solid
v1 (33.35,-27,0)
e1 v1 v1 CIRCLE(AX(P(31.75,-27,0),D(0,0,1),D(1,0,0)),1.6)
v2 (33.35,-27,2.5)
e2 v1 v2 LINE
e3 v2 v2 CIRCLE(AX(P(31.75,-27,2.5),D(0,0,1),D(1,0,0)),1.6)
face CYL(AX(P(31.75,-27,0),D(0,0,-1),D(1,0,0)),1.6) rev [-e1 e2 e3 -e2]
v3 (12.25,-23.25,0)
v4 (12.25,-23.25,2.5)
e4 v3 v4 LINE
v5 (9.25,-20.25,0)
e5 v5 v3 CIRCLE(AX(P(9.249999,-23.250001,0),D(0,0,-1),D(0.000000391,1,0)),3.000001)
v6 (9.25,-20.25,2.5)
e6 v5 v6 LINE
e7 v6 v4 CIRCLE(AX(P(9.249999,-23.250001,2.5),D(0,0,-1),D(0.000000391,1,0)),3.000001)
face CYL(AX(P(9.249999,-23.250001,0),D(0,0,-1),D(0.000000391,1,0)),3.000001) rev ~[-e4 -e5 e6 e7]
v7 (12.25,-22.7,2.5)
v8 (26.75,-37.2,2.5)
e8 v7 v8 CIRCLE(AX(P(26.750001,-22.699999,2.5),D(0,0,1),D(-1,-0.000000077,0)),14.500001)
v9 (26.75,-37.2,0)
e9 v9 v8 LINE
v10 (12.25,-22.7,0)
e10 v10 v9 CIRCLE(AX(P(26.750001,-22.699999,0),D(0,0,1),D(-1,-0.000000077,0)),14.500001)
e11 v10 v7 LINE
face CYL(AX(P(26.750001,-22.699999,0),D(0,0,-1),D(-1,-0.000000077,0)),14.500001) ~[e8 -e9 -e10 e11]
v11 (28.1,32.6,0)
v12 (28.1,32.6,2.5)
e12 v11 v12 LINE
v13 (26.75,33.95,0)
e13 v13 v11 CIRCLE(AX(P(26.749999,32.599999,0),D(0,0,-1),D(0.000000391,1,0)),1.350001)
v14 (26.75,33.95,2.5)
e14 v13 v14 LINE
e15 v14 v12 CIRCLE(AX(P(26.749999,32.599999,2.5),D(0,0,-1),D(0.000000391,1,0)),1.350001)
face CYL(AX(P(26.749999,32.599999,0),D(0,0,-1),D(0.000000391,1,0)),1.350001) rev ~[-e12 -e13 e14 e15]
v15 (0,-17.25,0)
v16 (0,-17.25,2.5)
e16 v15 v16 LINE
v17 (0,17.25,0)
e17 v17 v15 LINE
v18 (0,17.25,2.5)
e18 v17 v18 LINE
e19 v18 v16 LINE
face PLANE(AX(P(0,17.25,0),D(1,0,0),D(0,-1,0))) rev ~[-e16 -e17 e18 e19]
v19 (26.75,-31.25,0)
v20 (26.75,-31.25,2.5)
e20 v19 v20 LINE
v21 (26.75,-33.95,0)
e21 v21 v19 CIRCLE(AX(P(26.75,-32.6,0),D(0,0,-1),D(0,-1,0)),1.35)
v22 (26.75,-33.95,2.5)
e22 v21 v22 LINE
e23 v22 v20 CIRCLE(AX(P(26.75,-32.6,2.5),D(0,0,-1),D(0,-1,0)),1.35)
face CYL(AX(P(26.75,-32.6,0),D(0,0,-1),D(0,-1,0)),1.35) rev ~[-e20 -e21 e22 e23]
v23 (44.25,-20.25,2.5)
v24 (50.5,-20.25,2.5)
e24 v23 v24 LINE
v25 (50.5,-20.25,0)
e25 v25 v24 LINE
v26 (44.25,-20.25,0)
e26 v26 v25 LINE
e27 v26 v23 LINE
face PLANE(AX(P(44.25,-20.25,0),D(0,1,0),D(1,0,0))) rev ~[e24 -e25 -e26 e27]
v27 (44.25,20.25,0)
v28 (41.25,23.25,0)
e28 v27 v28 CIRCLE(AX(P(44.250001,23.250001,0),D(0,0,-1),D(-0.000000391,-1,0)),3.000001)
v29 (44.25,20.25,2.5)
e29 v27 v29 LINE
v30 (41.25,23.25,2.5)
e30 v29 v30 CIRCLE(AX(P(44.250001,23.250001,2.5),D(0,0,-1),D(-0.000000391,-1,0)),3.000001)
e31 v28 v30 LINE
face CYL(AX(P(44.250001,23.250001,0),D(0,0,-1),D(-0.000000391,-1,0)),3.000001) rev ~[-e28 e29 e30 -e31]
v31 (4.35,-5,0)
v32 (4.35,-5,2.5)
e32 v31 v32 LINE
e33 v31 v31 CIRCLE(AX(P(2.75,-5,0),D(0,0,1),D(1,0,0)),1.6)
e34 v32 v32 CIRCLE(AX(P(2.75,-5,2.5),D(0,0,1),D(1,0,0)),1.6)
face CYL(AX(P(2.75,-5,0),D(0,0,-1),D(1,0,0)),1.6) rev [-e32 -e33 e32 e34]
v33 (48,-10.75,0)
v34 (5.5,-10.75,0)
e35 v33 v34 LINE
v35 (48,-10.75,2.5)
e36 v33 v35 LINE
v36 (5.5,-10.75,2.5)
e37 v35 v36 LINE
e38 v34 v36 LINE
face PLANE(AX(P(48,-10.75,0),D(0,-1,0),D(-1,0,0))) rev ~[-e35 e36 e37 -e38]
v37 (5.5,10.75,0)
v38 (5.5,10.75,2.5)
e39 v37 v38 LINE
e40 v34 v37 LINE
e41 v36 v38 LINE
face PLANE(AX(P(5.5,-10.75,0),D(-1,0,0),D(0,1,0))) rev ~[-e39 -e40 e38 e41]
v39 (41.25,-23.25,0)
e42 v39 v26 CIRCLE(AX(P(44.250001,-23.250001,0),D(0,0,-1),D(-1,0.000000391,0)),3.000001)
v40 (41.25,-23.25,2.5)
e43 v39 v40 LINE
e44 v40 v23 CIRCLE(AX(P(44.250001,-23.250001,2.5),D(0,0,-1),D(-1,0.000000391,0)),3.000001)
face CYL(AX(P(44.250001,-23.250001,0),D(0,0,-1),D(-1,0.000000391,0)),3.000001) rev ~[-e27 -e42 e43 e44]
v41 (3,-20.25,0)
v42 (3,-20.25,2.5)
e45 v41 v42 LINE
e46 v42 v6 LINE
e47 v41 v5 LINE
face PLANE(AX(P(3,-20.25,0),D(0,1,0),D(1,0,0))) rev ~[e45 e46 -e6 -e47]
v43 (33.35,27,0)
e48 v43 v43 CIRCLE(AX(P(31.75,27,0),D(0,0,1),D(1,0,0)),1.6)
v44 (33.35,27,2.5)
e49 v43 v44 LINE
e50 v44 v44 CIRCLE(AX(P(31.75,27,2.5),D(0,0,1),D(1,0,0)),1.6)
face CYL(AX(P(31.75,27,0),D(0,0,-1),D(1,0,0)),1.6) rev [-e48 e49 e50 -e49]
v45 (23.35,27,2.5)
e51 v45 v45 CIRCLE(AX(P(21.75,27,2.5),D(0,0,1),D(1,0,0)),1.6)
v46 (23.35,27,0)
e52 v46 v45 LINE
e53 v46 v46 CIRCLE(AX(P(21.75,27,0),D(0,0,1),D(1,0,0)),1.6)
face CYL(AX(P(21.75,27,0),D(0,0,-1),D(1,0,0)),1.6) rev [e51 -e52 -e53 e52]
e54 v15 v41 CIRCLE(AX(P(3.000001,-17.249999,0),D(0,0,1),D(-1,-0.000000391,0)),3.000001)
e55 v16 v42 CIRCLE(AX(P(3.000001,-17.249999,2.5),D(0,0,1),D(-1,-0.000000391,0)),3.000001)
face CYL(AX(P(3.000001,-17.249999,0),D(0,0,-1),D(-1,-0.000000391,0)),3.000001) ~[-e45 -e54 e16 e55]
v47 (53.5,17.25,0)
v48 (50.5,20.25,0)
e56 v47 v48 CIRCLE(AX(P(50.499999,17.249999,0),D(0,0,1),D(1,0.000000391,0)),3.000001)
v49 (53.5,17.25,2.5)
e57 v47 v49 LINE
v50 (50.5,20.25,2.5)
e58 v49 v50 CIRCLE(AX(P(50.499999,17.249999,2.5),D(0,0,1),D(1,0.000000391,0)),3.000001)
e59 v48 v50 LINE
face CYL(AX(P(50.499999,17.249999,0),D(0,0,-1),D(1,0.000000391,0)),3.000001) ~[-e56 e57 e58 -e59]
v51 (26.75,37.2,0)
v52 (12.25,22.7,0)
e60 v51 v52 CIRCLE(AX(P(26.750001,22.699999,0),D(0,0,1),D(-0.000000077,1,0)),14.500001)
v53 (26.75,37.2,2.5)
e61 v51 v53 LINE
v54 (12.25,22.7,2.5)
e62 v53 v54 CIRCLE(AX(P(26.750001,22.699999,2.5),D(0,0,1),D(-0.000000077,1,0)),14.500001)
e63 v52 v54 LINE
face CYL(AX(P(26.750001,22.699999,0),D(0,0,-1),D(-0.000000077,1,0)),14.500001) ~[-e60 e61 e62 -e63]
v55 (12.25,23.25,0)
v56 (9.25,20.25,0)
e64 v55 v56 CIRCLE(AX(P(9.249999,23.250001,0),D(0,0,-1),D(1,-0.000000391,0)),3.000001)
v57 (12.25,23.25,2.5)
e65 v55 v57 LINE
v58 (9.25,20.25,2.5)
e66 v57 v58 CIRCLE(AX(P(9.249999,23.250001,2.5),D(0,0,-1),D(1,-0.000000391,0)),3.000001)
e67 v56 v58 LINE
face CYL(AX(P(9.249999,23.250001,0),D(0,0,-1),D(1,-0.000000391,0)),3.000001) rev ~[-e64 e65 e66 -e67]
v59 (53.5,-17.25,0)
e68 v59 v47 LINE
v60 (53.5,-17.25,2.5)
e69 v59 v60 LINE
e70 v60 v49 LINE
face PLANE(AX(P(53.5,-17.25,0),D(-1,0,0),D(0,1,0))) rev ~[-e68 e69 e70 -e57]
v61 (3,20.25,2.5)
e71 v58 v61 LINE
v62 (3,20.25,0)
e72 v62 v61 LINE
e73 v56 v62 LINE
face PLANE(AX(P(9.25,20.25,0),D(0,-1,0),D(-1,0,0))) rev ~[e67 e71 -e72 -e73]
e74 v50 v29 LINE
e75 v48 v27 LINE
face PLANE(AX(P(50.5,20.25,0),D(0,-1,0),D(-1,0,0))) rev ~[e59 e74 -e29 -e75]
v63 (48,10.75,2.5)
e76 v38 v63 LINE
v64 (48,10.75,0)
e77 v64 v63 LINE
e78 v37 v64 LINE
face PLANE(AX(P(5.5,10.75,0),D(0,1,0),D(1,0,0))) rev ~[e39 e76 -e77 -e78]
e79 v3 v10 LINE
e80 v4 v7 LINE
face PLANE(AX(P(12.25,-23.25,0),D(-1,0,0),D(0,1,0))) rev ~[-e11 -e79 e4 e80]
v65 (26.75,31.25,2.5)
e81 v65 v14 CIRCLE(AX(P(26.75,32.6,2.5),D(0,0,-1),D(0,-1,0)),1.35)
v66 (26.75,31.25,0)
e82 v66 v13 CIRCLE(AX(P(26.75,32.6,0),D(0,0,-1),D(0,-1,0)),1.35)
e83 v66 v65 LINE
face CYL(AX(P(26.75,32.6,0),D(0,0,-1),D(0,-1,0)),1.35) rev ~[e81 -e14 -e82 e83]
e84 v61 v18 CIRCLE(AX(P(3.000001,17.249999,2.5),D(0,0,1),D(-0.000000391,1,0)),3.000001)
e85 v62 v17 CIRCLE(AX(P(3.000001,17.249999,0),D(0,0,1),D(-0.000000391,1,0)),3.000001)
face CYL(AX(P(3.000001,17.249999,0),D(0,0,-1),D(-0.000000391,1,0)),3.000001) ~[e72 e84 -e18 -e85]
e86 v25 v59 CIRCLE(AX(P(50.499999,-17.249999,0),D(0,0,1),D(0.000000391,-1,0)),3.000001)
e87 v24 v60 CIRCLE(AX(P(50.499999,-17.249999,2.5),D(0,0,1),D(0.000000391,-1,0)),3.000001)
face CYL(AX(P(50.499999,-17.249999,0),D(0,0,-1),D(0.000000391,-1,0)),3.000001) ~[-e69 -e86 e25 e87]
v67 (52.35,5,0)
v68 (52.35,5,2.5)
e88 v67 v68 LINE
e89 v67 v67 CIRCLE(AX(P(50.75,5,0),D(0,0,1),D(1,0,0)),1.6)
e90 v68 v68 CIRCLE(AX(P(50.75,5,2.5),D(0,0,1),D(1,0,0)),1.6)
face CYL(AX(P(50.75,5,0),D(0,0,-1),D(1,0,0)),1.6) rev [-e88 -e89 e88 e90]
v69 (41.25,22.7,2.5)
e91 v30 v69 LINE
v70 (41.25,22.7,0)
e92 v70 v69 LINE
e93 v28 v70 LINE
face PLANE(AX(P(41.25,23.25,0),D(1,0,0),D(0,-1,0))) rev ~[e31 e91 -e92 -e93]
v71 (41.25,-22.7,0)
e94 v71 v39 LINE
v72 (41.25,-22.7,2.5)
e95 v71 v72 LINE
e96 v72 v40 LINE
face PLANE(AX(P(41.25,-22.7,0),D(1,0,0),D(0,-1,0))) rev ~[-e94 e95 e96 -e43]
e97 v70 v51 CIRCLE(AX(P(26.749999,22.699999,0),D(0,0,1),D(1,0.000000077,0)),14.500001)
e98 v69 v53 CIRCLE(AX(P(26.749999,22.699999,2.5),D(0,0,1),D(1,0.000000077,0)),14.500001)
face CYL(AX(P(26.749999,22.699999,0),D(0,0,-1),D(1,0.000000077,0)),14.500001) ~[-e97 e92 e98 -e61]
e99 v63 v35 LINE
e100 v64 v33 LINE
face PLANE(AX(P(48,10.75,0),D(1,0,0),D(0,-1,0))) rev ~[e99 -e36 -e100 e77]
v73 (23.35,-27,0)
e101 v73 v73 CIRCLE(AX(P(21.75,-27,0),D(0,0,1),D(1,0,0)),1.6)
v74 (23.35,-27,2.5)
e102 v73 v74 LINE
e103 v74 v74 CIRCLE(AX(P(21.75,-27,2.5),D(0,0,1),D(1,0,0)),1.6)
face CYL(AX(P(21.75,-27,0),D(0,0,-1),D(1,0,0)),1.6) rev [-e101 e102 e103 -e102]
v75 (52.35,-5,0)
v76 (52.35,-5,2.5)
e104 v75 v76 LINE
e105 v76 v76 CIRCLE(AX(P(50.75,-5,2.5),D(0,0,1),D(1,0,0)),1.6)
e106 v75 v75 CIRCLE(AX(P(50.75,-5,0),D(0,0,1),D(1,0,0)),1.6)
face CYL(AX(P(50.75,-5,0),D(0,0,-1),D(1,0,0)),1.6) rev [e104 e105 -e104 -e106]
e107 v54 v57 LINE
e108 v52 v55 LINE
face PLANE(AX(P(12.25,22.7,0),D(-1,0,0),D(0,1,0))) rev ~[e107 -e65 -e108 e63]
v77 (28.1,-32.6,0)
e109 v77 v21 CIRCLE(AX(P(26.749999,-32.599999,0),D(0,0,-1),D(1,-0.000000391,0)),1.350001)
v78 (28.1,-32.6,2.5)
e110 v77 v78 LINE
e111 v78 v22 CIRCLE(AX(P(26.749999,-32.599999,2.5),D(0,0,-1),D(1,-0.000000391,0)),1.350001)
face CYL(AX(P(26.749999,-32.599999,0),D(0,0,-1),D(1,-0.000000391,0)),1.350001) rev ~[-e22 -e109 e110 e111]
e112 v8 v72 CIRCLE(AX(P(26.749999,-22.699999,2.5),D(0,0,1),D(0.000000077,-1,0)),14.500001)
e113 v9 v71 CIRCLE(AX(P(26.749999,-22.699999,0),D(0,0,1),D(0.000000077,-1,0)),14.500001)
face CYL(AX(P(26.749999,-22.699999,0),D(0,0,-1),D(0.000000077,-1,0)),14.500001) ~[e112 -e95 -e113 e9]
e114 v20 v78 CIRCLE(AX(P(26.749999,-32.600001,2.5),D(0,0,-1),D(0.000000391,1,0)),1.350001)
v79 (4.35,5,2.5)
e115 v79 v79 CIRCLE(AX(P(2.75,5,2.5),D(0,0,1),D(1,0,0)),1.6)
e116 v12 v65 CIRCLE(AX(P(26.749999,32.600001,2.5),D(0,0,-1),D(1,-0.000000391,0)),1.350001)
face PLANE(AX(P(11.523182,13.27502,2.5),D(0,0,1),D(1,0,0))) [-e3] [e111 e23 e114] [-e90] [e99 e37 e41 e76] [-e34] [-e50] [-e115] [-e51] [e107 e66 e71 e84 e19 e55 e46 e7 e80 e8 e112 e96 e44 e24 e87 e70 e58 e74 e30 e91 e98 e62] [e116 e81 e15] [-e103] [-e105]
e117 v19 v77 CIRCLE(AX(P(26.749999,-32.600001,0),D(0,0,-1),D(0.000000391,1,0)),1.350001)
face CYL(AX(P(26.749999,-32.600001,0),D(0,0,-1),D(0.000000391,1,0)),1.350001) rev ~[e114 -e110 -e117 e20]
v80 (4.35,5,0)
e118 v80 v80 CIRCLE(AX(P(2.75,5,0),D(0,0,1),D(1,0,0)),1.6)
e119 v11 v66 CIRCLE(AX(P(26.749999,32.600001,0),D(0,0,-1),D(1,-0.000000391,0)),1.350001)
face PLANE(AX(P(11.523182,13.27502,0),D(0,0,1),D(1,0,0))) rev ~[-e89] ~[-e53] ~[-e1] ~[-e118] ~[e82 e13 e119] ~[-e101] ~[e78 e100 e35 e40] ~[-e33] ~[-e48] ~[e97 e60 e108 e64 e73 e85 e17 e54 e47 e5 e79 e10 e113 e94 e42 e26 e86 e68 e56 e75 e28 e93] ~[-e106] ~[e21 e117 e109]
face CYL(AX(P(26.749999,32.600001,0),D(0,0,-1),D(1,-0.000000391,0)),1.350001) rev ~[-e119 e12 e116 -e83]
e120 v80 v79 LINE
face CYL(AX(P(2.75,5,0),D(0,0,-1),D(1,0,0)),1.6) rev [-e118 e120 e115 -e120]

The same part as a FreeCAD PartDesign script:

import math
import FreeCAD as App
import Part
import Sketcher
Q = App.Units.Quantity


def add_polygon(sketch, points):
    """Adds a closed chain of lines whose ends are joined by coincident constraints."""
    first, n = sketch.GeometryCount, len(points)
    for a, b in zip(points, points[1:] + points[:1]):
        sketch.addGeometry(Part.LineSegment(App.Vector(*a, 0), App.Vector(*b, 0)), False)
    for i in range(n):
        sketch.addConstraint(Sketcher.Constraint("Coincident", first + i, 2, first + (i + 1) % n, 1))

doc = App.newDocument("Part")
body = doc.addObject("PartDesign::Body", "Body")

sketch1 = body.newObject("Sketcher::SketchObject", "Sketch")
sketch1.AttachmentSupport = (doc.getObject("XY_Plane"), [""])
sketch1.MapMode = "FlatFace"
sketch1.addGeometry(Part.LineSegment(App.Vector(0, 17.2, 0), App.Vector(0, -17.2, 0)), False)
sketch1.addGeometry(Part.ArcOfCircle(Part.Circle(App.Vector(3, -17.2, 0), App.Vector(0, 0, 1), 3), math.radians(-180), math.radians(-90)), False)
sketch1.addGeometry(Part.LineSegment(App.Vector(3, -20.2, 0), App.Vector(9.2, -20.2, 0)), False)
sketch1.addGeometry(Part.ArcOfCircle(Part.Circle(App.Vector(9.2, -23.3, 0), App.Vector(0, 0, 1), 3), math.radians(0), math.radians(90)), False)
sketch1.addGeometry(Part.LineSegment(App.Vector(12.2, -23.2, 0), App.Vector(12.2, -22.7, 0)), False)
sketch1.addGeometry(Part.ArcOfCircle(Part.Circle(App.Vector(26.8, -22.7, 0), App.Vector(0, 0, 1), 14.5), math.radians(-180), math.radians(-90)), False)
sketch1.addGeometry(Part.ArcOfCircle(Part.Circle(App.Vector(26.7, -22.7, 0), App.Vector(0, 0, 1), 14.5), math.radians(-90), math.radians(0)), False)
sketch1.addGeometry(Part.LineSegment(App.Vector(41.2, -22.7, 0), App.Vector(41.2, -23.2, 0)), False)
sketch1.addGeometry(Part.ArcOfCircle(Part.Circle(App.Vector(44.3, -23.3, 0), App.Vector(0, 0, 1), 3), math.radians(90), math.radians(180)), False)
sketch1.addGeometry(Part.LineSegment(App.Vector(44.2, -20.2, 0), App.Vector(50.5, -20.2, 0)), False)
sketch1.addGeometry(Part.ArcOfCircle(Part.Circle(App.Vector(50.5, -17.2, 0), App.Vector(0, 0, 1), 3), math.radians(-90), math.radians(0)), False)
sketch1.addGeometry(Part.LineSegment(App.Vector(53.5, -17.2, 0), App.Vector(53.5, 17.2, 0)), False)
sketch1.addGeometry(Part.ArcOfCircle(Part.Circle(App.Vector(50.5, 17.2, 0), App.Vector(0, 0, 1), 3), math.radians(0), math.radians(90)), False)
sketch1.addGeometry(Part.LineSegment(App.Vector(50.5, 20.2, 0), App.Vector(44.2, 20.2, 0)), False)
sketch1.addGeometry(Part.ArcOfCircle(Part.Circle(App.Vector(44.3, 23.3, 0), App.Vector(0, 0, 1), 3), math.radians(-180), math.radians(-90)), False)
sketch1.addGeometry(Part.LineSegment(App.Vector(41.2, 23.2, 0), App.Vector(41.2, 22.7, 0)), False)
sketch1.addGeometry(Part.ArcOfCircle(Part.Circle(App.Vector(26.7, 22.7, 0), App.Vector(0, 0, 1), 14.5), math.radians(0), math.radians(90)), False)
sketch1.addGeometry(Part.ArcOfCircle(Part.Circle(App.Vector(26.8, 22.7, 0), App.Vector(0, 0, 1), 14.5), math.radians(90), math.radians(180)), False)
sketch1.addGeometry(Part.LineSegment(App.Vector(12.2, 22.7, 0), App.Vector(12.2, 23.2, 0)), False)
sketch1.addGeometry(Part.ArcOfCircle(Part.Circle(App.Vector(9.2, 23.3, 0), App.Vector(0, 0, 1), 3), math.radians(-90), math.radians(0)), False)
sketch1.addGeometry(Part.LineSegment(App.Vector(9.2, 20.2, 0), App.Vector(3, 20.2, 0)), False)
sketch1.addGeometry(Part.ArcOfCircle(Part.Circle(App.Vector(3, 17.2, 0), App.Vector(0, 0, 1), 3), math.radians(90), math.radians(180)), False)
sketch1.addGeometry(Part.Circle(App.Vector(21.8, -27, 0), App.Vector(0, 0, 1), 1.6), False)
sketch1.addGeometry(Part.Circle(App.Vector(2.8, -5, 0), App.Vector(0, 0, 1), 1.6), False)
sketch1.addGeometry(Part.ArcOfCircle(Part.Circle(App.Vector(26.7, -32.6, 0), App.Vector(0, 0, 1), 1.4), math.radians(0), math.radians(90)), False)
sketch1.addGeometry(Part.ArcOfCircle(Part.Circle(App.Vector(26.7, -32.6, 0), App.Vector(0, 0, 1), 1.4), math.radians(-90), math.radians(0)), False)
sketch1.addGeometry(Part.ArcOfCircle(Part.Circle(App.Vector(26.8, -32.6, 0), App.Vector(0, 0, 1), 1.4), math.radians(90), math.radians(270)), False)
sketch1.addGeometry(Part.Circle(App.Vector(31.8, -27, 0), App.Vector(0, 0, 1), 1.6), False)
sketch1.addGeometry(Part.Circle(App.Vector(50.8, -5, 0), App.Vector(0, 0, 1), 1.6), False)
sketch1.addGeometry(Part.Circle(App.Vector(2.8, 5, 0), App.Vector(0, 0, 1), 1.6), False)
sketch1.addGeometry(Part.Circle(App.Vector(21.8, 27, 0), App.Vector(0, 0, 1), 1.6), False)
add_polygon(sketch1, [(5.5, -10.8), (5.5, 10.8), (48, 10.8), (48, -10.8)])
sketch1.addGeometry(Part.Circle(App.Vector(50.8, 5, 0), App.Vector(0, 0, 1), 1.6), False)
sketch1.addGeometry(Part.Circle(App.Vector(31.8, 27, 0), App.Vector(0, 0, 1), 1.6), False)
sketch1.addGeometry(Part.ArcOfCircle(Part.Circle(App.Vector(26.8, 32.6, 0), App.Vector(0, 0, 1), 1.4), math.radians(90), math.radians(270)), False)
sketch1.addGeometry(Part.ArcOfCircle(Part.Circle(App.Vector(26.7, 32.6, 0), App.Vector(0, 0, 1), 1.4), math.radians(0), math.radians(90)), False)
sketch1.addGeometry(Part.ArcOfCircle(Part.Circle(App.Vector(26.7, 32.6, 0), App.Vector(0, 0, 1), 1.4), math.radians(-90), math.radians(0)), False)
sketch1.addConstraint(Sketcher.Constraint("Tangent", 0, 2, 1, 1))
sketch1.addConstraint(Sketcher.Constraint("Tangent", 1, 2, 2, 1))
sketch1.addConstraint(Sketcher.Constraint("Tangent", 2, 2, 3, 2))
sketch1.addConstraint(Sketcher.Constraint("Tangent", 3, 1, 4, 1))
sketch1.addConstraint(Sketcher.Constraint("Tangent", 4, 2, 5, 1))
sketch1.addConstraint(Sketcher.Constraint("Tangent", 5, 2, 6, 1))
sketch1.addConstraint(Sketcher.Constraint("Tangent", 6, 2, 7, 1))
sketch1.addConstraint(Sketcher.Constraint("Tangent", 7, 2, 8, 2))
sketch1.addConstraint(Sketcher.Constraint("Tangent", 8, 1, 9, 1))
sketch1.addConstraint(Sketcher.Constraint("Tangent", 9, 2, 10, 1))
sketch1.addConstraint(Sketcher.Constraint("Tangent", 10, 2, 11, 1))
sketch1.addConstraint(Sketcher.Constraint("Tangent", 11, 2, 12, 1))
sketch1.addConstraint(Sketcher.Constraint("Tangent", 12, 2, 13, 1))
sketch1.addConstraint(Sketcher.Constraint("Tangent", 13, 2, 14, 2))
sketch1.addConstraint(Sketcher.Constraint("Tangent", 14, 1, 15, 1))
sketch1.addConstraint(Sketcher.Constraint("Tangent", 15, 2, 16, 1))
sketch1.addConstraint(Sketcher.Constraint("Tangent", 16, 2, 17, 1))
sketch1.addConstraint(Sketcher.Constraint("Tangent", 17, 2, 18, 1))
sketch1.addConstraint(Sketcher.Constraint("Tangent", 18, 2, 19, 2))
sketch1.addConstraint(Sketcher.Constraint("Tangent", 19, 1, 20, 1))
sketch1.addConstraint(Sketcher.Constraint("Tangent", 20, 2, 21, 1))
sketch1.addConstraint(Sketcher.Constraint("Tangent", 21, 2, 0, 1))
sketch1.addConstraint(Sketcher.Constraint("Tangent", 24, 1, 25, 2))
sketch1.addConstraint(Sketcher.Constraint("Tangent", 25, 1, 26, 2))
sketch1.addConstraint(Sketcher.Constraint("Tangent", 26, 1, 24, 2))
sketch1.addConstraint(Sketcher.Constraint("Tangent", 37, 1, 38, 2))
sketch1.addConstraint(Sketcher.Constraint("Tangent", 38, 1, 39, 2))
sketch1.addConstraint(Sketcher.Constraint("Tangent", 39, 1, 37, 2))
sketch1.addConstraint(Sketcher.Constraint("Vertical", 0))
sketch1.addConstraint(Sketcher.Constraint("Horizontal", 2))
sketch1.addConstraint(Sketcher.Constraint("Vertical", 4))
sketch1.addConstraint(Sketcher.Constraint("Vertical", 7))
sketch1.addConstraint(Sketcher.Constraint("Horizontal", 9))
sketch1.addConstraint(Sketcher.Constraint("Vertical", 11))
sketch1.addConstraint(Sketcher.Constraint("Horizontal", 13))
sketch1.addConstraint(Sketcher.Constraint("Vertical", 15))
sketch1.addConstraint(Sketcher.Constraint("Vertical", 18))
sketch1.addConstraint(Sketcher.Constraint("Horizontal", 20))
sketch1.addConstraint(Sketcher.Constraint("Vertical", 31))
sketch1.addConstraint(Sketcher.Constraint("Horizontal", 32))
sketch1.addConstraint(Sketcher.Constraint("Vertical", 33))
sketch1.addConstraint(Sketcher.Constraint("Horizontal", 34))
sketch1.addConstraint(Sketcher.Constraint("Equal", 1, 3))
sketch1.addConstraint(Sketcher.Constraint("Equal", 5, 6))
sketch1.addConstraint(Sketcher.Constraint("Equal", 3, 8))
sketch1.addConstraint(Sketcher.Constraint("Equal", 8, 10))
sketch1.addConstraint(Sketcher.Constraint("Equal", 10, 12))
sketch1.addConstraint(Sketcher.Constraint("Equal", 12, 14))
sketch1.addConstraint(Sketcher.Constraint("Equal", 6, 16))
sketch1.addConstraint(Sketcher.Constraint("Equal", 16, 17))
sketch1.addConstraint(Sketcher.Constraint("Equal", 14, 19))
sketch1.addConstraint(Sketcher.Constraint("Equal", 19, 21))
sketch1.addConstraint(Sketcher.Constraint("Equal", 22, 23))
sketch1.addConstraint(Sketcher.Constraint("Equal", 23, 27))
sketch1.addConstraint(Sketcher.Constraint("Equal", 27, 28))
sketch1.addConstraint(Sketcher.Constraint("Equal", 28, 29))
sketch1.addConstraint(Sketcher.Constraint("Equal", 29, 30))
sketch1.addConstraint(Sketcher.Constraint("Equal", 30, 35))
sketch1.addConstraint(Sketcher.Constraint("Equal", 35, 36))
sketch1.addConstraint(Sketcher.Constraint("Equal", 26, 37))
sketch1.addConstraint(Sketcher.Constraint("Symmetric", 0, 2, 21, 2, -1, 1))
sketch1.addConstraint(Sketcher.Constraint("Symmetric", 8, 3, 14, 3, -1))
sketch1.addConstraint(Sketcher.Constraint("Symmetric", 23, 3, 29, 3, -1))
sketch1.addConstraint(Sketcher.Constraint("Symmetric", 22, 3, 30, 3, -1))
sketch1.addConstraint(Sketcher.Constraint("Symmetric", 28, 3, 35, 3, -1))
sketch1.addConstraint(Sketcher.Constraint("Symmetric", 27, 3, 36, 3, -1))
sketch1.addConstraint(Sketcher.Constraint("Symmetric", 24, 3, 37, 3, -1))
sketch1.addConstraint(Sketcher.Constraint("Symmetric", 5, 2, 16, 2, -1))
sketch1.addConstraint(Sketcher.Constraint("Horizontal", 3, 3, 8, 3))
sketch1.addConstraint(Sketcher.Constraint("Horizontal", 22, 3, 27, 3))
sketch1.addConstraint(Sketcher.Constraint("Horizontal", 23, 3, 28, 3))
sketch1.addConstraint(Sketcher.Constraint("Horizontal", 26, 3, 24, 1))
sketch1.addConstraint(Sketcher.Constraint("Horizontal", 39, 3, 38, 1))
sketch1.addConstraint(Sketcher.Constraint("Vertical", 17, 3, 24, 3))
sketch1.addConstraint(Sketcher.Constraint("Vertical", 39, 3, 5, 2))
sketch1.addConstraint(Sketcher.Constraint("Vertical", 16, 2, 25, 1))
sketch1.addConstraint(Sketcher.Constraint("Vertical", 25, 1, 26, 1))
sketch1.addConstraint(Sketcher.Constraint("Vertical", 26, 1, 37, 1))
sketch1.addConstraint(Sketcher.Constraint("Vertical", 37, 1, 39, 1))
sketch1.addConstraint(Sketcher.Constraint("Equal", 2, 9))
sketch1.addConstraint(Sketcher.Constraint("Radius", 1, Q("3.000001 mm")))
sketch1.addConstraint(Sketcher.Constraint("Diameter", 22, Q("3.2 mm")))
sketch1.addConstraint(Sketcher.Constraint("Radius", 5, Q("14.500001 mm")))
sketch1.addConstraint(Sketcher.Constraint("Radius", 24, Q("1.350001 mm")))
sketch1.addConstraint(Sketcher.Constraint("DistanceX", 32, 1, 32, 2, Q("42.5 mm")))
sketch1.addConstraint(Sketcher.Constraint("DistanceY", 0, 2, 0, 1, Q("34.5 mm")))
sketch1.addConstraint(Sketcher.Constraint("DistanceY", 31, 1, 31, 2, Q("21.5 mm")))
sketch1.addConstraint(Sketcher.Constraint("DistanceY", 22, 3, -1, 1, Q("27 mm")))
sketch1.addConstraint(Sketcher.Constraint("DistanceY", 23, 3, -1, 1, Q("5 mm")))
sketch1.addConstraint(Sketcher.Constraint("DistanceX", -1, 1, 32, 2, Q("48 mm")))
sketch1.addConstraint(Sketcher.Constraint("DistanceX", 22, 3, 6, 3, Q("4.999999 mm")))
sketch1.addConstraint(Sketcher.Constraint("DistanceX", 23, 3, 22, 3, Q("19 mm")))
sketch1.addConstraint(Sketcher.Constraint("DistanceX", 5, 3, 27, 3, Q("4.999999 mm")))
sketch1.addConstraint(Sketcher.Constraint("DistanceX", 27, 3, 28, 3, Q("19 mm")))
sketch1.addConstraint(Sketcher.Constraint("DistanceX", 2, 1, 2, 2, Q("6.25 mm")))
sketch1.addConstraint(Sketcher.Constraint("DistanceY", 4, 1, 4, 2, Q("0.55 mm")))
sketch1.addConstraint(Sketcher.Constraint("DistanceY", 24, 3, -1, 1, Q("32.600001 mm")))
sketch1.addConstraint(Sketcher.Constraint("DistanceY", 31, 2, 21, 3, Q("6.499999 mm")))
pad1 = body.newObject("PartDesign::Pad", "Pad")
pad1.Profile = sketch1
pad1.Length = 2.5

doc.recompute()
